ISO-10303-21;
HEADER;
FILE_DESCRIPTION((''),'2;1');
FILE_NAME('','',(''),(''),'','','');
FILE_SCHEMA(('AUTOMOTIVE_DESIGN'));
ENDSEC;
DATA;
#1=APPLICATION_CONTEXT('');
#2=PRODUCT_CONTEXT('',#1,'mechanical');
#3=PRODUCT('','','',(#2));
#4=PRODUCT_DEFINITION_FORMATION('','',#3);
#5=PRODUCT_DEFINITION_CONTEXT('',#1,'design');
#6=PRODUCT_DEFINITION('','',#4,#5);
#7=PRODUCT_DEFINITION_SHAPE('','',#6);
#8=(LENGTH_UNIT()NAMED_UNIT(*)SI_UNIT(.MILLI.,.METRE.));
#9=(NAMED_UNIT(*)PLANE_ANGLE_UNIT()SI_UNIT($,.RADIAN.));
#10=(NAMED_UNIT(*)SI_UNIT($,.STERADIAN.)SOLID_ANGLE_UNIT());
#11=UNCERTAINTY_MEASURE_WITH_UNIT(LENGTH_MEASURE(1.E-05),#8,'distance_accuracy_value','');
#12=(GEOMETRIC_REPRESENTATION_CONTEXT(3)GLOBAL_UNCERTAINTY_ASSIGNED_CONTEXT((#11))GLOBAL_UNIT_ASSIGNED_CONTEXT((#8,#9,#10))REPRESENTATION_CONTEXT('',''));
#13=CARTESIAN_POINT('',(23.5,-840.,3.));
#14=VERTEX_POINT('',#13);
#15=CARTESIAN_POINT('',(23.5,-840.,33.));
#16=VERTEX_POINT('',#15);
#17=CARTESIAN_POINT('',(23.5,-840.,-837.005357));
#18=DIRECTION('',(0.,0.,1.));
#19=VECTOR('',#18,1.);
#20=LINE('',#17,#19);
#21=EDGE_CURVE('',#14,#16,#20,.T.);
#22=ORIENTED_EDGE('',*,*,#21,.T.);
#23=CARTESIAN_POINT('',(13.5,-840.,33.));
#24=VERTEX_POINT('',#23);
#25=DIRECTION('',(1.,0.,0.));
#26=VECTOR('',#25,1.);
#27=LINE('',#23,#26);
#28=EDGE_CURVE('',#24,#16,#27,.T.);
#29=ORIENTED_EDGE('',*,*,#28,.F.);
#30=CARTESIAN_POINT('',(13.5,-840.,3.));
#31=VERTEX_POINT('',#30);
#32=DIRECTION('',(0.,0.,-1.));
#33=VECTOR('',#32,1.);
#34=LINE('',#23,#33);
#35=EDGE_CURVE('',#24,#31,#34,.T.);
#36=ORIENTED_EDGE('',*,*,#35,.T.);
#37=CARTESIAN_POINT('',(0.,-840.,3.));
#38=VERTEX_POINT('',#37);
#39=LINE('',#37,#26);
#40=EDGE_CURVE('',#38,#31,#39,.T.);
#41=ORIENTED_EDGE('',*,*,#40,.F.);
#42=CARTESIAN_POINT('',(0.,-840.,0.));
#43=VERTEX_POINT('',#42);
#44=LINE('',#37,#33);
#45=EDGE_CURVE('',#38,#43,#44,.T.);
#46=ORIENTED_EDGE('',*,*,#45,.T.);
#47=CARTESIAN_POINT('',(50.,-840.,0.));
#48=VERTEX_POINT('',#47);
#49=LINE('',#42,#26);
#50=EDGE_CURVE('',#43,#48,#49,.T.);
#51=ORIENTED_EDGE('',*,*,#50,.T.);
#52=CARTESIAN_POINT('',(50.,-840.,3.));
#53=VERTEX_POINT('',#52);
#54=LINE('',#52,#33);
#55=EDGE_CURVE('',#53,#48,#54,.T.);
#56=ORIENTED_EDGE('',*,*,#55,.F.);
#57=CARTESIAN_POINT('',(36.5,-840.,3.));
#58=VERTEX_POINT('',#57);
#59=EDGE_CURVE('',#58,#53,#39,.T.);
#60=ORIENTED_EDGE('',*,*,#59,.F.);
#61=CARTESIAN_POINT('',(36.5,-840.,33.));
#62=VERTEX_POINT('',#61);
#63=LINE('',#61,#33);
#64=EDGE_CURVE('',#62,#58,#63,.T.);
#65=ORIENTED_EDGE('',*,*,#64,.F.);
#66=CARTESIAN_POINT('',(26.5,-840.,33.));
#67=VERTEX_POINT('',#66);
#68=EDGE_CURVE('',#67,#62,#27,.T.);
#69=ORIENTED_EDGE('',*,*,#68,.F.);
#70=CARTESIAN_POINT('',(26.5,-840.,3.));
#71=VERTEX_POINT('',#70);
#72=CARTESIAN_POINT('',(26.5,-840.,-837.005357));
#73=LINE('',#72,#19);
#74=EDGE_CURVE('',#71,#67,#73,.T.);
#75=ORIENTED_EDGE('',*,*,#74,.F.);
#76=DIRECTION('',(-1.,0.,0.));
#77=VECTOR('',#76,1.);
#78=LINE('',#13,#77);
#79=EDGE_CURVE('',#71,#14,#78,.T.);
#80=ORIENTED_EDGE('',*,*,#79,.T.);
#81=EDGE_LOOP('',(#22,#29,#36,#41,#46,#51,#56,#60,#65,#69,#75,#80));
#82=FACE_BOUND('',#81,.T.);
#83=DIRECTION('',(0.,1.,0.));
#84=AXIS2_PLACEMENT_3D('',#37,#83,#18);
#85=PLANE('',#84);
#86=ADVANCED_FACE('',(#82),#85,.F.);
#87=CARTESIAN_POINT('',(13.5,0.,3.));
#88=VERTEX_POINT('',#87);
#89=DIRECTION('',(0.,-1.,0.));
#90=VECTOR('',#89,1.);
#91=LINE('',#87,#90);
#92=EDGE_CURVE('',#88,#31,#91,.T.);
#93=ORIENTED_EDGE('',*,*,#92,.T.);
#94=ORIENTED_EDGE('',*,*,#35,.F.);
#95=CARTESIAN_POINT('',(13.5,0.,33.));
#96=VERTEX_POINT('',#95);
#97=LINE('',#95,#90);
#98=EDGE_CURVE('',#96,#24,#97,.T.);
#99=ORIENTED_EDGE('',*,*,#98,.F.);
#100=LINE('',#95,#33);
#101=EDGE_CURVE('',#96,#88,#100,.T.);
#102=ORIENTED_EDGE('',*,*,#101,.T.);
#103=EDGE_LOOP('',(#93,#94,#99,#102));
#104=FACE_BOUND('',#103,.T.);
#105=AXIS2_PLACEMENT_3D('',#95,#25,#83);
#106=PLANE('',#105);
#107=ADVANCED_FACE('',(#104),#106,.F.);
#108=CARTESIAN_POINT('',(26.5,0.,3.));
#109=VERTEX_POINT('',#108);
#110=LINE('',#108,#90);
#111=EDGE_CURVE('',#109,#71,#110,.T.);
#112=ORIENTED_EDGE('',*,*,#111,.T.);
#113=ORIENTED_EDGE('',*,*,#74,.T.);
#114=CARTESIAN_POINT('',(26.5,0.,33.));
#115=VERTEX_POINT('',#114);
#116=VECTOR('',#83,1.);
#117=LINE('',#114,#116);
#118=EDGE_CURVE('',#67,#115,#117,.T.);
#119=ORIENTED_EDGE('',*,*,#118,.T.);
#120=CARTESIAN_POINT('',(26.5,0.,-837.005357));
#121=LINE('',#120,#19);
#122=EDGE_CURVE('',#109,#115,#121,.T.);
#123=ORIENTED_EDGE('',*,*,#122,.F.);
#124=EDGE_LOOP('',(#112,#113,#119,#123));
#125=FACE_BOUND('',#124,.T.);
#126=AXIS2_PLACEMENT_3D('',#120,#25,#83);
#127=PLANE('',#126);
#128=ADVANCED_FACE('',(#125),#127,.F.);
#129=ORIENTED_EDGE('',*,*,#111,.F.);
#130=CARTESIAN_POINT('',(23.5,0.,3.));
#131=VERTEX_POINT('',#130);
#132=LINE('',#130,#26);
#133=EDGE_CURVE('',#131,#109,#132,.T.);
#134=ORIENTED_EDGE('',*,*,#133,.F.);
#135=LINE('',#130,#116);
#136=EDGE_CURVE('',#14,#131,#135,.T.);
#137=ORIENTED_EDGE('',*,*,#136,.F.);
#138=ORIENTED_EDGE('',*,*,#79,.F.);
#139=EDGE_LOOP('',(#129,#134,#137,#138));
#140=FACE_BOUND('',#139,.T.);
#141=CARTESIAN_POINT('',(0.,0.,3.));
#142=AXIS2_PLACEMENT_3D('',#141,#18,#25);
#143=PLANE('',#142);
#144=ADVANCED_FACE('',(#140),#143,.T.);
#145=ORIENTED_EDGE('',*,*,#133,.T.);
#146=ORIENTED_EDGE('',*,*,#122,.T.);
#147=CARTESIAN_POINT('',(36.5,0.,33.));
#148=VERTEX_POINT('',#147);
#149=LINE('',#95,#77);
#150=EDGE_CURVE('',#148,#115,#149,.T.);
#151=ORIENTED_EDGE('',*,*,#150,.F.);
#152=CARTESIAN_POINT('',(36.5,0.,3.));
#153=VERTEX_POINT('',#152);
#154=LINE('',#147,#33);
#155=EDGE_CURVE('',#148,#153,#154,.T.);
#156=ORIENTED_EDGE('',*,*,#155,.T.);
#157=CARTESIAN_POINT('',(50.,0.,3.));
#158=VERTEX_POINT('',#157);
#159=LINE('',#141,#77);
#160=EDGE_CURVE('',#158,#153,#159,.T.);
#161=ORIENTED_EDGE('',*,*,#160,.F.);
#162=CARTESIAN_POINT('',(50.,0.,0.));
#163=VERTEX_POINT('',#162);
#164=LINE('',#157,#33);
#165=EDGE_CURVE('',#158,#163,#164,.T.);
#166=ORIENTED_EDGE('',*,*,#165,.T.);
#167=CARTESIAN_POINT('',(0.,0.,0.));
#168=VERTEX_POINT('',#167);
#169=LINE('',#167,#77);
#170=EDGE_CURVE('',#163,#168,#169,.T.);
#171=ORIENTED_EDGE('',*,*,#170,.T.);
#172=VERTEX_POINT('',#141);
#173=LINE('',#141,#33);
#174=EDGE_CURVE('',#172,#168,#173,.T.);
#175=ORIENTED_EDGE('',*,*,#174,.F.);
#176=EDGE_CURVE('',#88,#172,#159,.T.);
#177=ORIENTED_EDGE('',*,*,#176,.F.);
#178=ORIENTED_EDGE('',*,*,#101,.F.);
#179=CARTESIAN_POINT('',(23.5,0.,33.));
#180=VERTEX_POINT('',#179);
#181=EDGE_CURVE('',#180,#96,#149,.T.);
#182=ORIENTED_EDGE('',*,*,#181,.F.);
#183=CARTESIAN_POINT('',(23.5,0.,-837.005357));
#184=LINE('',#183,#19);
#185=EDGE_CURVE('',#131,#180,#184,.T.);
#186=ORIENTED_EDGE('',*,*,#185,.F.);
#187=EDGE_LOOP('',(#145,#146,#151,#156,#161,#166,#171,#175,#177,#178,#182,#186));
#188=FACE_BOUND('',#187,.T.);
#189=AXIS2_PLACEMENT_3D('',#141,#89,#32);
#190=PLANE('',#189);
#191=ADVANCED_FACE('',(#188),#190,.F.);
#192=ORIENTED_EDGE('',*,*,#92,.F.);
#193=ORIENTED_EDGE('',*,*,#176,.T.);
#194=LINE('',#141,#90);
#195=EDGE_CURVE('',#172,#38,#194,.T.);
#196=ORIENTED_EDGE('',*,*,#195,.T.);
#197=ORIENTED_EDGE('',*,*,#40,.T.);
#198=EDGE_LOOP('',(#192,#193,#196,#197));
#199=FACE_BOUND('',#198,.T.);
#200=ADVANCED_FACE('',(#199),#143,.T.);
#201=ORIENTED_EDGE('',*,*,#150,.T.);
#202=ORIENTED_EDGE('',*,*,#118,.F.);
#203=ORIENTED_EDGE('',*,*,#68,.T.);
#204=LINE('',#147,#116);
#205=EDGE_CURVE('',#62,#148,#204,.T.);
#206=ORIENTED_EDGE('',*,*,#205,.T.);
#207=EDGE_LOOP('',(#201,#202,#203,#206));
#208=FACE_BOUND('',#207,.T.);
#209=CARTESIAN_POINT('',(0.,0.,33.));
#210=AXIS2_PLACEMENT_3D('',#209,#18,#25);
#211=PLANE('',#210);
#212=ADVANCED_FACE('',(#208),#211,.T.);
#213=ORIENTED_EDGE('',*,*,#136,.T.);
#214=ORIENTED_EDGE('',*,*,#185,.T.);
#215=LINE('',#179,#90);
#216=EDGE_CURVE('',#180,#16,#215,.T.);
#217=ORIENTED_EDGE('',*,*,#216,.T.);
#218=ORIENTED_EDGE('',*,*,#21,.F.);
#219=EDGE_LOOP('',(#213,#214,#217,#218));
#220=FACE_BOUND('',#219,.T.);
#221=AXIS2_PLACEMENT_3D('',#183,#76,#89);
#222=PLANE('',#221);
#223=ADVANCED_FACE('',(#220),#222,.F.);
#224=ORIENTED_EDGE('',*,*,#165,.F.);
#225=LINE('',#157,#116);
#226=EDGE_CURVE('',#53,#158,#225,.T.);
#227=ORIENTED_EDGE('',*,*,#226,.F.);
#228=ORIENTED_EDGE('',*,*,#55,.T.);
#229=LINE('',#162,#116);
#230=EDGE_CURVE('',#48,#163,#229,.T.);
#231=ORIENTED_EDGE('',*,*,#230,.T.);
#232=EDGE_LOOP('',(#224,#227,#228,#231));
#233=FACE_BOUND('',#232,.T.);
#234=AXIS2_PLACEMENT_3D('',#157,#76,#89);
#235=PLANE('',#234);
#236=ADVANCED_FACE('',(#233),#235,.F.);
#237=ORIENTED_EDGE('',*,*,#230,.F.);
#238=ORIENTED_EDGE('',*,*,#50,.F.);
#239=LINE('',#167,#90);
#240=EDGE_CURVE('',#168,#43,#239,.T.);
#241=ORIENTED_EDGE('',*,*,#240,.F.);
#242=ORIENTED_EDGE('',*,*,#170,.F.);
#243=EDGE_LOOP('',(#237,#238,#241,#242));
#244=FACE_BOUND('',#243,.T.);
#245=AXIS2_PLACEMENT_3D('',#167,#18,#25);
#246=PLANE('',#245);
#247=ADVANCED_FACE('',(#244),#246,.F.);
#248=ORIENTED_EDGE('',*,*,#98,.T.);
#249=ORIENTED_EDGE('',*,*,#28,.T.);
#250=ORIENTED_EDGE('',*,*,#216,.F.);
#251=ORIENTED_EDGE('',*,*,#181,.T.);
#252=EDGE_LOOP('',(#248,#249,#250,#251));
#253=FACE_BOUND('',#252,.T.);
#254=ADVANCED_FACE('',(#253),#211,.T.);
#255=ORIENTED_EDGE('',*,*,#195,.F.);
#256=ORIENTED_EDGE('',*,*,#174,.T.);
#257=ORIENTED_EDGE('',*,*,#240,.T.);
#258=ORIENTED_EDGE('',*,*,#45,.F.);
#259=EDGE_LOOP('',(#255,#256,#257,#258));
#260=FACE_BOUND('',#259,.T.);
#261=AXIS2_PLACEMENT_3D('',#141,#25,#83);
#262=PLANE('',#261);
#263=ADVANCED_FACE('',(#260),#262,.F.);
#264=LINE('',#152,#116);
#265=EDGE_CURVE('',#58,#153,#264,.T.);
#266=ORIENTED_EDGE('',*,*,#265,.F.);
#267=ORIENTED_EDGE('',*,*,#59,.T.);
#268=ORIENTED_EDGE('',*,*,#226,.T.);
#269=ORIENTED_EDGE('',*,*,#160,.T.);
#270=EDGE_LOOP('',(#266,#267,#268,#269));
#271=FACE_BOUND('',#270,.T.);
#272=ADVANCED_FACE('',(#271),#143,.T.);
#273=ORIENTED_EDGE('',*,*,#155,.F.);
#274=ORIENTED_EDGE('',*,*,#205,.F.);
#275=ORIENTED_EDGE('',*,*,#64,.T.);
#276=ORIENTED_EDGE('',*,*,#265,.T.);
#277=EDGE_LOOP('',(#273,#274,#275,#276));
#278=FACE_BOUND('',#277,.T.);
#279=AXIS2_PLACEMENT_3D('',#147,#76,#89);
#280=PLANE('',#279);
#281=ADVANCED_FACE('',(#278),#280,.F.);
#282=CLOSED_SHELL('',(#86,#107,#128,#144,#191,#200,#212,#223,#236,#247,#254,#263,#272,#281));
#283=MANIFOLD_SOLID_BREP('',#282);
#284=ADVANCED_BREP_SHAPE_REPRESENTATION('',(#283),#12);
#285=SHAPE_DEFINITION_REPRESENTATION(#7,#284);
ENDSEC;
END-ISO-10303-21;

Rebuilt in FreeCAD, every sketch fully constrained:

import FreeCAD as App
import Part
import Sketcher

V = App.Vector
Q = App.Units.Quantity

doc = App.newDocument("Part")
params = doc.addObject("Spreadsheet::Sheet", "Params")
for row, (alias, value) in enumerate([
    ("sketch1_width", "50 mm"),
    ("sketch1_height", "840 mm"),
    ("pad1_length", "3 mm"),
    ("sketch2_width", "23 mm"),
    ("sketch2_height", "840 mm"),
    ("pad2_length", "30 mm"),
    ("sketch3_width", "3 mm"),
    ("sketch3_height", "840 mm"),
    ("pocket1_length", "30 mm"),
], start=1):
    params.set(f"A{row}", alias)
    params.set(f"B{row}", "=" + value)
    params.setAlias(f"B{row}", alias)

body = doc.addObject("PartDesign::Body", "Body")

# Sketch on XY plane
sketch1 = body.newObject("Sketcher::SketchObject", "Sketch")
sketch1.AttachmentSupport = (doc.getObject("XY_Plane"), [""])
sketch1.MapMode = "FlatFace"
sketch1.addGeometry([
    Part.LineSegment(V(0, 0, 0), V(0, -840, 0)),
    Part.LineSegment(V(0, -840, 0), V(50, -840, 0)),
    Part.LineSegment(V(50, -840, 0), V(50, 0, 0)),
    Part.LineSegment(V(50, 0, 0), V(0, 0, 0)),
], False)
sketch1.addConstraint([
    Sketcher.Constraint("Coincident", 0, 2, 1, 1),
    Sketcher.Constraint("Coincident", 1, 2, 2, 1),
    Sketcher.Constraint("Coincident", 2, 2, 3, 1),
    Sketcher.Constraint("Coincident", 3, 2, 0, 1),
    Sketcher.Constraint("Vertical", 0),
    Sketcher.Constraint("Horizontal", 1),
    Sketcher.Constraint("Vertical", 2),
    Sketcher.Constraint("Horizontal", 3),
    Sketcher.Constraint("Coincident", 3, 2, -1, 1),
    Sketcher.Constraint("DistanceX", 1, 1, 1, 2, Q("50 mm")),
    Sketcher.Constraint("DistanceY", 0, 2, 0, 1, Q("840 mm")),
])
sketch1.setExpression("Constraints[9]", "Params.sketch1_width")
sketch1.setExpression("Constraints[10]", "Params.sketch1_height")
pad1 = body.newObject("PartDesign::Pad", "Pad")
pad1.Profile = sketch1
pad1.setExpression("Length", "Params.pad1_length")

# Sketch on XY plane
sketch2 = body.newObject("Sketcher::SketchObject", "Sketch001")
sketch2.AttachmentSupport = (doc.getObject("XY_Plane"), [""])
sketch2.MapMode = "FlatFace"
sketch2.AttachmentOffset = App.Placement(V(0, 0, 3), App.Rotation())
sketch2.addGeometry([
    Part.LineSegment(V(13.5, 0, 0), V(13.5, -840, 0)),
    Part.LineSegment(V(13.5, -840, 0), V(36.5, -840, 0)),
    Part.LineSegment(V(36.5, -840, 0), V(36.5, 0, 0)),
    Part.LineSegment(V(36.5, 0, 0), V(13.5, 0, 0)),
], False)
sketch2.addConstraint([
    Sketcher.Constraint("Coincident", 0, 2, 1, 1),
    Sketcher.Constraint("Coincident", 1, 2, 2, 1),
    Sketcher.Constraint("Coincident", 2, 2, 3, 1),
    Sketcher.Constraint("Coincident", 3, 2, 0, 1),
    Sketcher.Constraint("Vertical", 0),
    Sketcher.Constraint("Horizontal", 1),
    Sketcher.Constraint("Vertical", 2),
    Sketcher.Constraint("Horizontal", 3),
    Sketcher.Constraint("PointOnObject", 2, 2, -1),
    Sketcher.Constraint("DistanceX", 1, 1, 1, 2, Q("23 mm")),
    Sketcher.Constraint("DistanceY", 0, 2, 0, 1, Q("840 mm")),
    Sketcher.Constraint("DistanceX", -1, 1, 0, 2, Q("13.5 mm")),
])
sketch2.setExpression("Constraints[9]", "Params.sketch2_width")
sketch2.setExpression("Constraints[10]", "Params.sketch2_height")
pad2 = body.newObject("PartDesign::Pad", "Pad001")
pad2.Profile = sketch2
pad2.setExpression("Length", "Params.pad2_length")

# Sketch on XY plane
sketch3 = body.newObject("Sketcher::SketchObject", "Sketch002")
sketch3.AttachmentSupport = (doc.getObject("XY_Plane"), [""])
sketch3.MapMode = "FlatFace"
sketch3.AttachmentOffset = App.Placement(V(0, 0, 33), App.Rotation())
sketch3.addGeometry([
    Part.LineSegment(V(23.5, 0, 0), V(23.5, -840, 0)),
    Part.LineSegment(V(23.5, -840, 0), V(26.5, -840, 0)),
    Part.LineSegment(V(26.5, -840, 0), V(26.5, 0, 0)),
    Part.LineSegment(V(26.5, 0, 0), V(23.5, 0, 0)),
], False)
sketch3.addConstraint([
    Sketcher.Constraint("Coincident", 0, 2, 1, 1),
    Sketcher.Constraint("Coincident", 1, 2, 2, 1),
    Sketcher.Constraint("Coincident", 2, 2, 3, 1),
    Sketcher.Constraint("Coincident", 3, 2, 0, 1),
    Sketcher.Constraint("Vertical", 0),
    Sketcher.Constraint("Horizontal", 1),
    Sketcher.Constraint("Vertical", 2),
    Sketcher.Constraint("Horizontal", 3),
    Sketcher.Constraint("PointOnObject", 2, 2, -1),
    Sketcher.Constraint("DistanceX", 1, 1, 1, 2, Q("3 mm")),
    Sketcher.Constraint("DistanceY", 0, 2, 0, 1, Q("840 mm")),
    Sketcher.Constraint("DistanceX", -1, 1, 0, 2, Q("23.5 mm")),
])
sketch3.setExpression("Constraints[9]", "Params.sketch3_width")
sketch3.setExpression("Constraints[10]", "Params.sketch3_height")
pocket1 = body.newObject("PartDesign::Pocket", "Pocket")
pocket1.Profile = sketch3
pocket1.setExpression("Length", "Params.pocket1_length")

doc.recompute()
